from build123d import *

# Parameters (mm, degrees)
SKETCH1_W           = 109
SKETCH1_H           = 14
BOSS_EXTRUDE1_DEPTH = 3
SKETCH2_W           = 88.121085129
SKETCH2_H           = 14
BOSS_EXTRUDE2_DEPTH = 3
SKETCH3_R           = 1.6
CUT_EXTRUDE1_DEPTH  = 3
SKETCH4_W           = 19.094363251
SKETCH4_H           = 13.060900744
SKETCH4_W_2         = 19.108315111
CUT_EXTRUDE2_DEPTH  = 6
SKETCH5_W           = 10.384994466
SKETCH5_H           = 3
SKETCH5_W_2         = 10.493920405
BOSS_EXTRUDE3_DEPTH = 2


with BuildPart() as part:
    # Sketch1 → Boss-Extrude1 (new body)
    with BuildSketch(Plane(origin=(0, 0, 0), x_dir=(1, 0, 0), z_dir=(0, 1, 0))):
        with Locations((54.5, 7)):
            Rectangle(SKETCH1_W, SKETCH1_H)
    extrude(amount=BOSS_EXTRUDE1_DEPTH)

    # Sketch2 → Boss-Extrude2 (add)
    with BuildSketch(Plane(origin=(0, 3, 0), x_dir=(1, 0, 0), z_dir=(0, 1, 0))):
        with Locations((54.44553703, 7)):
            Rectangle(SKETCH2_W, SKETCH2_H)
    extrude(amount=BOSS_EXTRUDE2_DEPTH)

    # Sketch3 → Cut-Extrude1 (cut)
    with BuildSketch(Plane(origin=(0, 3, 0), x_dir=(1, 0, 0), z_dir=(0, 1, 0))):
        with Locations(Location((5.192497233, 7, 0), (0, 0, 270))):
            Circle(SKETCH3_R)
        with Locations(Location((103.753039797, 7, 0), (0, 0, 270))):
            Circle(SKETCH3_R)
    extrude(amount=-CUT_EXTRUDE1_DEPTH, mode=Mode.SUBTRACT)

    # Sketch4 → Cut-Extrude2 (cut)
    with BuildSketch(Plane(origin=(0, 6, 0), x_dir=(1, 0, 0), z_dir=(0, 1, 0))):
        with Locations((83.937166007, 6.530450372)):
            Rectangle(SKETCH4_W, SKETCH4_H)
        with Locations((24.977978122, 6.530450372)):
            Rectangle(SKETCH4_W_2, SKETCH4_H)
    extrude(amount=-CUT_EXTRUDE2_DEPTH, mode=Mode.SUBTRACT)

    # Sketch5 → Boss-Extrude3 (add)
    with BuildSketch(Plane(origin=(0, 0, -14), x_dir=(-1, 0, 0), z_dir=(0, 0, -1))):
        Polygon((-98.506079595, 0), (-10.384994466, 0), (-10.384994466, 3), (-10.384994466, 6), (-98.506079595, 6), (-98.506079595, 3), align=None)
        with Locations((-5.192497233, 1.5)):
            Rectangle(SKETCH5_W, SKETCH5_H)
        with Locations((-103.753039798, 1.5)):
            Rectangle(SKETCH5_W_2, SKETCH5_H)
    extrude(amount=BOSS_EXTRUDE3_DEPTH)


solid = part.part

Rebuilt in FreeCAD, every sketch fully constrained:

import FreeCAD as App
import Part
import Sketcher

V = App.Vector
Q = App.Units.Quantity

doc = App.newDocument("Part")
body = doc.addObject("PartDesign::Body", "Body")

# Sketch on XZ plane
sketch1 = doc.addObject("Sketcher::SketchObject", "Sketch")
body.addObject(sketch1)
sketch1.AttachmentSupport = (doc.XZ_Plane, [""])
sketch1.MapMode = "FlatFace"
sketch1.addGeometry([
    Part.LineSegment(V(0, -14, 0), V(0, 0, 0)),
    Part.LineSegment(V(0, 0, 0), V(109, 0, 0)),
    Part.LineSegment(V(109, 0, 0), V(109, -14, 0)),
    Part.LineSegment(V(109, -14, 0), V(0, -14, 0)),
], False)
sketch1.addConstraint([
    Sketcher.Constraint("Coincident", 0, 2, 1, 1),
    Sketcher.Constraint("Coincident", 1, 2, 2, 1),
    Sketcher.Constraint("Coincident", 2, 2, 3, 1),
    Sketcher.Constraint("Coincident", 3, 2, 0, 1),
    Sketcher.Constraint("Vertical", 0),
    Sketcher.Constraint("Horizontal", 1),
    Sketcher.Constraint("Vertical", 2),
    Sketcher.Constraint("Horizontal", 3),
    Sketcher.Constraint("Coincident", 0, 2, -1, 1),
    Sketcher.Constraint("DistanceX", 1, 1, 1, 2, Q("109 mm")),
    Sketcher.Constraint("DistanceY", 0, 1, 0, 2, Q("14 mm")),
])
pad1 = doc.addObject("PartDesign::Pad", "Pad")
body.addObject(pad1)
pad1.Profile = sketch1
pad1.Length = 3
pad1.Reversed = True

# Sketch on XZ plane
sketch2 = doc.addObject("Sketcher::SketchObject", "Sketch001")
body.addObject(sketch2)
sketch2.AttachmentSupport = (doc.XZ_Plane, [""])
sketch2.MapMode = "FlatFace"
sketch2.AttachmentOffset = App.Placement(V(0, 0, -3), App.Rotation())
sketch2.addGeometry([
    Part.LineSegment(V(10, -14, 0), V(10, 0, 0)),
    Part.LineSegment(V(10, 0, 0), V(99, 0, 0)),
    Part.LineSegment(V(99, 0, 0), V(99, -14, 0)),
    Part.LineSegment(V(99, -14, 0), V(10, -14, 0)),
], False)
sketch2.addConstraint([
    Sketcher.Constraint("Coincident", 0, 2, 1, 1),
    Sketcher.Constraint("Coincident", 1, 2, 2, 1),
    Sketcher.Constraint("Coincident", 2, 2, 3, 1),
    Sketcher.Constraint("Coincident", 3, 2, 0, 1),
    Sketcher.Constraint("Vertical", 0),
    Sketcher.Constraint("Horizontal", 1),
    Sketcher.Constraint("Vertical", 2),
    Sketcher.Constraint("Horizontal", 3),
    Sketcher.Constraint("PointOnObject", 0, 2, -1),
    Sketcher.Constraint("DistanceY", 0, 1, 0, 2, Q("14 mm")),
    Sketcher.Constraint("DistanceX", 1, 1, 1, 2, Q("88.121085 mm")),
    Sketcher.Constraint("DistanceX", -1, 1, 1, 2, Q("98.50608 mm")),
])
pad2 = doc.addObject("PartDesign::Pad", "Pad001")
body.addObject(pad2)
pad2.Profile = sketch2
pad2.Length = 3
pad2.Reversed = True

# Sketch on XZ plane
sketch3 = doc.addObject("Sketcher::SketchObject", "Sketch002")
body.addObject(sketch3)
sketch3.AttachmentSupport = (doc.XZ_Plane, [""])
sketch3.MapMode = "FlatFace"
sketch3.AttachmentOffset = App.Placement(V(0, 0, -3), App.Rotation())
sketch3.addGeometry([
    Part.Circle(V(5.2, -7, 0), V(0, 0, 1), 1.6),
    Part.Circle(V(103.8, -7, 0), V(0, 0, 1), 1.6),
], False)
sketch3.addConstraint([
    Sketcher.Constraint("Equal", 0, 1),
    Sketcher.Constraint("Horizontal", 0, 3, 1, 3),
    Sketcher.Constraint("Diameter", 0, Q("3.2 mm")),
    Sketcher.Constraint("DistanceY", 0, 3, -1, 1, Q("7 mm")),
    Sketcher.Constraint("DistanceX", -1, 1, 1, 3, Q("103.75304 mm")),
    Sketcher.Constraint("DistanceX", -1, 1, 0, 3, Q("5.192497 mm")),
])
pocket1 = doc.addObject("PartDesign::Pocket", "Pocket")
body.addObject(pocket1)
pocket1.Profile = sketch3
pocket1.Length = 3
pocket1.Reversed = True

# Sketch on XZ plane
sketch4 = doc.addObject("Sketcher::SketchObject", "Sketch003")
body.addObject(sketch4)
sketch4.AttachmentSupport = (doc.XZ_Plane, [""])
sketch4.MapMode = "FlatFace"
sketch4.AttachmentOffset = App.Placement(V(0, 0, -6), App.Rotation())
sketch4.addGeometry([
    Part.LineSegment(V(74, -13, 0), V(74, 0, 0)),  # 0
    Part.LineSegment(V(74, 0, 0), V(93, 0, 0)),  # 1
    Part.LineSegment(V(93, 0, 0), V(93, -13, 0)),  # 2
    Part.LineSegment(V(93, -13, 0), V(74, -13, 0)),  # 3
    Part.LineSegment(V(15, -13, 0), V(15, 0, 0)),  # 4
    Part.LineSegment(V(15, 0, 0), V(35, 0, 0)),  # 5
    Part.LineSegment(V(35, 0, 0), V(35, -13, 0)),  # 6
    Part.LineSegment(V(35, -13, 0), V(15, -13, 0)),  # 7
], False)
sketch4.addConstraint([
    Sketcher.Constraint("Coincident", 0, 2, 1, 1),
    Sketcher.Constraint("Coincident", 1, 2, 2, 1),
    Sketcher.Constraint("Coincident", 2, 2, 3, 1),
    Sketcher.Constraint("Coincident", 3, 2, 0, 1),
    Sketcher.Constraint("Coincident", 4, 2, 5, 1),
    Sketcher.Constraint("Coincident", 5, 2, 6, 1),
    Sketcher.Constraint("Coincident", 6, 2, 7, 1),
    Sketcher.Constraint("Coincident", 7, 2, 4, 1),
    Sketcher.Constraint("Vertical", 0),
    Sketcher.Constraint("Horizontal", 1),
    Sketcher.Constraint("Vertical", 2),
    Sketcher.Constraint("Horizontal", 3),
    Sketcher.Constraint("Vertical", 4),
    Sketcher.Constraint("Horizontal", 5),
    Sketcher.Constraint("Vertical", 6),
    Sketcher.Constraint("Horizontal", 7),
    Sketcher.Constraint("PointOnObject", 0, 2, -1),
    Sketcher.Constraint("PointOnObject", 4, 2, -1),
    Sketcher.Constraint("Horizontal", 3, 2, 6, 2),
    Sketcher.Constraint("DistanceY", 0, 1, 0, 2, Q("13.060901 mm")),
    Sketcher.Constraint("DistanceX", 1, 1, 1, 2, Q("19.094363 mm")),
    Sketcher.Constraint("DistanceX", 5, 1, 5, 2, Q("19.108315 mm")),
    Sketcher.Constraint("DistanceX", -1, 1, 4, 2, Q("15.423821 mm")),
    Sketcher.Constraint("DistanceX", 5, 2, 0, 2, Q("39.857849 mm")),
])
pocket2 = doc.addObject("PartDesign::Pocket", "Pocket001")
body.addObject(pocket2)
pocket2.Profile = sketch4
pocket2.Length = 6
pocket2.Reversed = True

# Sketch on XY plane
sketch5 = doc.addObject("Sketcher::SketchObject", "Sketch004")
body.addObject(sketch5)
sketch5.AttachmentSupport = (doc.XY_Plane, [""])
sketch5.MapMode = "FlatFace"
sketch5.AttachmentOffset = App.Placement(V(0, 0, -14), App.Rotation())
sketch5.addGeometry([
    Part.LineSegment(V(0, 0, 0), V(0, 3, 0)),  # 0
    Part.LineSegment(V(0, 3, 0), V(10.4, 3, 0)),  # 1
    Part.LineSegment(V(10.4, 3, 0), V(10.4, 6, 0)),  # 2
    Part.LineSegment(V(10.4, 6, 0), V(98.5, 6, 0)),  # 3
    Part.LineSegment(V(98.5, 6, 0), V(98.5, 3, 0)),  # 4
    Part.LineSegment(V(98.5, 3, 0), V(109, 3, 0)),  # 5
    Part.LineSegment(V(109, 3, 0), V(109, 0, 0)),  # 6
    Part.LineSegment(V(109, 0, 0), V(0, 0, 0)),  # 7
], False)
sketch5.addConstraint([
    Sketcher.Constraint("Coincident", 0, 2, 1, 1),
    Sketcher.Constraint("Coincident", 1, 2, 2, 1),
    Sketcher.Constraint("Coincident", 2, 2, 3, 1),
    Sketcher.Constraint("Coincident", 3, 2, 4, 1),
    Sketcher.Constraint("Coincident", 4, 2, 5, 1),
    Sketcher.Constraint("Coincident", 5, 2, 6, 1),
    Sketcher.Constraint("Coincident", 6, 2, 7, 1),
    Sketcher.Constraint("Coincident", 7, 2, 0, 1),
    Sketcher.Constraint("Vertical", 0),
    Sketcher.Constraint("Horizontal", 1),
    Sketcher.Constraint("Vertical", 2),
    Sketcher.Constraint("Horizontal", 3),
    Sketcher.Constraint("Vertical", 4),
    Sketcher.Constraint("Horizontal", 5),
    Sketcher.Constraint("Vertical", 6),
    Sketcher.Constraint("Horizontal", 7),
    Sketcher.Constraint("Coincident", 7, 2, -1, 1),
    Sketcher.Constraint("Horizontal", 1, 2, 4, 2),
    Sketcher.Constraint("Equal", 0, 2),
    Sketcher.Constraint("DistanceX", 7, 2, 7, 1, Q("109 mm")),
    Sketcher.Constraint("DistanceY", 0, 1, 0, 2, Q("3 mm")),
    Sketcher.Constraint("DistanceX", 5, 1, 5, 2, Q("10.49392 mm")),
    Sketcher.Constraint("DistanceX", 1, 1, 1, 2, Q("10.384994 mm")),
])
pad3 = doc.addObject("PartDesign::Pad", "Pad002")
body.addObject(pad3)
pad3.Profile = sketch5
pad3.Length = 2
pad3.Reversed = True

doc.recompute()
